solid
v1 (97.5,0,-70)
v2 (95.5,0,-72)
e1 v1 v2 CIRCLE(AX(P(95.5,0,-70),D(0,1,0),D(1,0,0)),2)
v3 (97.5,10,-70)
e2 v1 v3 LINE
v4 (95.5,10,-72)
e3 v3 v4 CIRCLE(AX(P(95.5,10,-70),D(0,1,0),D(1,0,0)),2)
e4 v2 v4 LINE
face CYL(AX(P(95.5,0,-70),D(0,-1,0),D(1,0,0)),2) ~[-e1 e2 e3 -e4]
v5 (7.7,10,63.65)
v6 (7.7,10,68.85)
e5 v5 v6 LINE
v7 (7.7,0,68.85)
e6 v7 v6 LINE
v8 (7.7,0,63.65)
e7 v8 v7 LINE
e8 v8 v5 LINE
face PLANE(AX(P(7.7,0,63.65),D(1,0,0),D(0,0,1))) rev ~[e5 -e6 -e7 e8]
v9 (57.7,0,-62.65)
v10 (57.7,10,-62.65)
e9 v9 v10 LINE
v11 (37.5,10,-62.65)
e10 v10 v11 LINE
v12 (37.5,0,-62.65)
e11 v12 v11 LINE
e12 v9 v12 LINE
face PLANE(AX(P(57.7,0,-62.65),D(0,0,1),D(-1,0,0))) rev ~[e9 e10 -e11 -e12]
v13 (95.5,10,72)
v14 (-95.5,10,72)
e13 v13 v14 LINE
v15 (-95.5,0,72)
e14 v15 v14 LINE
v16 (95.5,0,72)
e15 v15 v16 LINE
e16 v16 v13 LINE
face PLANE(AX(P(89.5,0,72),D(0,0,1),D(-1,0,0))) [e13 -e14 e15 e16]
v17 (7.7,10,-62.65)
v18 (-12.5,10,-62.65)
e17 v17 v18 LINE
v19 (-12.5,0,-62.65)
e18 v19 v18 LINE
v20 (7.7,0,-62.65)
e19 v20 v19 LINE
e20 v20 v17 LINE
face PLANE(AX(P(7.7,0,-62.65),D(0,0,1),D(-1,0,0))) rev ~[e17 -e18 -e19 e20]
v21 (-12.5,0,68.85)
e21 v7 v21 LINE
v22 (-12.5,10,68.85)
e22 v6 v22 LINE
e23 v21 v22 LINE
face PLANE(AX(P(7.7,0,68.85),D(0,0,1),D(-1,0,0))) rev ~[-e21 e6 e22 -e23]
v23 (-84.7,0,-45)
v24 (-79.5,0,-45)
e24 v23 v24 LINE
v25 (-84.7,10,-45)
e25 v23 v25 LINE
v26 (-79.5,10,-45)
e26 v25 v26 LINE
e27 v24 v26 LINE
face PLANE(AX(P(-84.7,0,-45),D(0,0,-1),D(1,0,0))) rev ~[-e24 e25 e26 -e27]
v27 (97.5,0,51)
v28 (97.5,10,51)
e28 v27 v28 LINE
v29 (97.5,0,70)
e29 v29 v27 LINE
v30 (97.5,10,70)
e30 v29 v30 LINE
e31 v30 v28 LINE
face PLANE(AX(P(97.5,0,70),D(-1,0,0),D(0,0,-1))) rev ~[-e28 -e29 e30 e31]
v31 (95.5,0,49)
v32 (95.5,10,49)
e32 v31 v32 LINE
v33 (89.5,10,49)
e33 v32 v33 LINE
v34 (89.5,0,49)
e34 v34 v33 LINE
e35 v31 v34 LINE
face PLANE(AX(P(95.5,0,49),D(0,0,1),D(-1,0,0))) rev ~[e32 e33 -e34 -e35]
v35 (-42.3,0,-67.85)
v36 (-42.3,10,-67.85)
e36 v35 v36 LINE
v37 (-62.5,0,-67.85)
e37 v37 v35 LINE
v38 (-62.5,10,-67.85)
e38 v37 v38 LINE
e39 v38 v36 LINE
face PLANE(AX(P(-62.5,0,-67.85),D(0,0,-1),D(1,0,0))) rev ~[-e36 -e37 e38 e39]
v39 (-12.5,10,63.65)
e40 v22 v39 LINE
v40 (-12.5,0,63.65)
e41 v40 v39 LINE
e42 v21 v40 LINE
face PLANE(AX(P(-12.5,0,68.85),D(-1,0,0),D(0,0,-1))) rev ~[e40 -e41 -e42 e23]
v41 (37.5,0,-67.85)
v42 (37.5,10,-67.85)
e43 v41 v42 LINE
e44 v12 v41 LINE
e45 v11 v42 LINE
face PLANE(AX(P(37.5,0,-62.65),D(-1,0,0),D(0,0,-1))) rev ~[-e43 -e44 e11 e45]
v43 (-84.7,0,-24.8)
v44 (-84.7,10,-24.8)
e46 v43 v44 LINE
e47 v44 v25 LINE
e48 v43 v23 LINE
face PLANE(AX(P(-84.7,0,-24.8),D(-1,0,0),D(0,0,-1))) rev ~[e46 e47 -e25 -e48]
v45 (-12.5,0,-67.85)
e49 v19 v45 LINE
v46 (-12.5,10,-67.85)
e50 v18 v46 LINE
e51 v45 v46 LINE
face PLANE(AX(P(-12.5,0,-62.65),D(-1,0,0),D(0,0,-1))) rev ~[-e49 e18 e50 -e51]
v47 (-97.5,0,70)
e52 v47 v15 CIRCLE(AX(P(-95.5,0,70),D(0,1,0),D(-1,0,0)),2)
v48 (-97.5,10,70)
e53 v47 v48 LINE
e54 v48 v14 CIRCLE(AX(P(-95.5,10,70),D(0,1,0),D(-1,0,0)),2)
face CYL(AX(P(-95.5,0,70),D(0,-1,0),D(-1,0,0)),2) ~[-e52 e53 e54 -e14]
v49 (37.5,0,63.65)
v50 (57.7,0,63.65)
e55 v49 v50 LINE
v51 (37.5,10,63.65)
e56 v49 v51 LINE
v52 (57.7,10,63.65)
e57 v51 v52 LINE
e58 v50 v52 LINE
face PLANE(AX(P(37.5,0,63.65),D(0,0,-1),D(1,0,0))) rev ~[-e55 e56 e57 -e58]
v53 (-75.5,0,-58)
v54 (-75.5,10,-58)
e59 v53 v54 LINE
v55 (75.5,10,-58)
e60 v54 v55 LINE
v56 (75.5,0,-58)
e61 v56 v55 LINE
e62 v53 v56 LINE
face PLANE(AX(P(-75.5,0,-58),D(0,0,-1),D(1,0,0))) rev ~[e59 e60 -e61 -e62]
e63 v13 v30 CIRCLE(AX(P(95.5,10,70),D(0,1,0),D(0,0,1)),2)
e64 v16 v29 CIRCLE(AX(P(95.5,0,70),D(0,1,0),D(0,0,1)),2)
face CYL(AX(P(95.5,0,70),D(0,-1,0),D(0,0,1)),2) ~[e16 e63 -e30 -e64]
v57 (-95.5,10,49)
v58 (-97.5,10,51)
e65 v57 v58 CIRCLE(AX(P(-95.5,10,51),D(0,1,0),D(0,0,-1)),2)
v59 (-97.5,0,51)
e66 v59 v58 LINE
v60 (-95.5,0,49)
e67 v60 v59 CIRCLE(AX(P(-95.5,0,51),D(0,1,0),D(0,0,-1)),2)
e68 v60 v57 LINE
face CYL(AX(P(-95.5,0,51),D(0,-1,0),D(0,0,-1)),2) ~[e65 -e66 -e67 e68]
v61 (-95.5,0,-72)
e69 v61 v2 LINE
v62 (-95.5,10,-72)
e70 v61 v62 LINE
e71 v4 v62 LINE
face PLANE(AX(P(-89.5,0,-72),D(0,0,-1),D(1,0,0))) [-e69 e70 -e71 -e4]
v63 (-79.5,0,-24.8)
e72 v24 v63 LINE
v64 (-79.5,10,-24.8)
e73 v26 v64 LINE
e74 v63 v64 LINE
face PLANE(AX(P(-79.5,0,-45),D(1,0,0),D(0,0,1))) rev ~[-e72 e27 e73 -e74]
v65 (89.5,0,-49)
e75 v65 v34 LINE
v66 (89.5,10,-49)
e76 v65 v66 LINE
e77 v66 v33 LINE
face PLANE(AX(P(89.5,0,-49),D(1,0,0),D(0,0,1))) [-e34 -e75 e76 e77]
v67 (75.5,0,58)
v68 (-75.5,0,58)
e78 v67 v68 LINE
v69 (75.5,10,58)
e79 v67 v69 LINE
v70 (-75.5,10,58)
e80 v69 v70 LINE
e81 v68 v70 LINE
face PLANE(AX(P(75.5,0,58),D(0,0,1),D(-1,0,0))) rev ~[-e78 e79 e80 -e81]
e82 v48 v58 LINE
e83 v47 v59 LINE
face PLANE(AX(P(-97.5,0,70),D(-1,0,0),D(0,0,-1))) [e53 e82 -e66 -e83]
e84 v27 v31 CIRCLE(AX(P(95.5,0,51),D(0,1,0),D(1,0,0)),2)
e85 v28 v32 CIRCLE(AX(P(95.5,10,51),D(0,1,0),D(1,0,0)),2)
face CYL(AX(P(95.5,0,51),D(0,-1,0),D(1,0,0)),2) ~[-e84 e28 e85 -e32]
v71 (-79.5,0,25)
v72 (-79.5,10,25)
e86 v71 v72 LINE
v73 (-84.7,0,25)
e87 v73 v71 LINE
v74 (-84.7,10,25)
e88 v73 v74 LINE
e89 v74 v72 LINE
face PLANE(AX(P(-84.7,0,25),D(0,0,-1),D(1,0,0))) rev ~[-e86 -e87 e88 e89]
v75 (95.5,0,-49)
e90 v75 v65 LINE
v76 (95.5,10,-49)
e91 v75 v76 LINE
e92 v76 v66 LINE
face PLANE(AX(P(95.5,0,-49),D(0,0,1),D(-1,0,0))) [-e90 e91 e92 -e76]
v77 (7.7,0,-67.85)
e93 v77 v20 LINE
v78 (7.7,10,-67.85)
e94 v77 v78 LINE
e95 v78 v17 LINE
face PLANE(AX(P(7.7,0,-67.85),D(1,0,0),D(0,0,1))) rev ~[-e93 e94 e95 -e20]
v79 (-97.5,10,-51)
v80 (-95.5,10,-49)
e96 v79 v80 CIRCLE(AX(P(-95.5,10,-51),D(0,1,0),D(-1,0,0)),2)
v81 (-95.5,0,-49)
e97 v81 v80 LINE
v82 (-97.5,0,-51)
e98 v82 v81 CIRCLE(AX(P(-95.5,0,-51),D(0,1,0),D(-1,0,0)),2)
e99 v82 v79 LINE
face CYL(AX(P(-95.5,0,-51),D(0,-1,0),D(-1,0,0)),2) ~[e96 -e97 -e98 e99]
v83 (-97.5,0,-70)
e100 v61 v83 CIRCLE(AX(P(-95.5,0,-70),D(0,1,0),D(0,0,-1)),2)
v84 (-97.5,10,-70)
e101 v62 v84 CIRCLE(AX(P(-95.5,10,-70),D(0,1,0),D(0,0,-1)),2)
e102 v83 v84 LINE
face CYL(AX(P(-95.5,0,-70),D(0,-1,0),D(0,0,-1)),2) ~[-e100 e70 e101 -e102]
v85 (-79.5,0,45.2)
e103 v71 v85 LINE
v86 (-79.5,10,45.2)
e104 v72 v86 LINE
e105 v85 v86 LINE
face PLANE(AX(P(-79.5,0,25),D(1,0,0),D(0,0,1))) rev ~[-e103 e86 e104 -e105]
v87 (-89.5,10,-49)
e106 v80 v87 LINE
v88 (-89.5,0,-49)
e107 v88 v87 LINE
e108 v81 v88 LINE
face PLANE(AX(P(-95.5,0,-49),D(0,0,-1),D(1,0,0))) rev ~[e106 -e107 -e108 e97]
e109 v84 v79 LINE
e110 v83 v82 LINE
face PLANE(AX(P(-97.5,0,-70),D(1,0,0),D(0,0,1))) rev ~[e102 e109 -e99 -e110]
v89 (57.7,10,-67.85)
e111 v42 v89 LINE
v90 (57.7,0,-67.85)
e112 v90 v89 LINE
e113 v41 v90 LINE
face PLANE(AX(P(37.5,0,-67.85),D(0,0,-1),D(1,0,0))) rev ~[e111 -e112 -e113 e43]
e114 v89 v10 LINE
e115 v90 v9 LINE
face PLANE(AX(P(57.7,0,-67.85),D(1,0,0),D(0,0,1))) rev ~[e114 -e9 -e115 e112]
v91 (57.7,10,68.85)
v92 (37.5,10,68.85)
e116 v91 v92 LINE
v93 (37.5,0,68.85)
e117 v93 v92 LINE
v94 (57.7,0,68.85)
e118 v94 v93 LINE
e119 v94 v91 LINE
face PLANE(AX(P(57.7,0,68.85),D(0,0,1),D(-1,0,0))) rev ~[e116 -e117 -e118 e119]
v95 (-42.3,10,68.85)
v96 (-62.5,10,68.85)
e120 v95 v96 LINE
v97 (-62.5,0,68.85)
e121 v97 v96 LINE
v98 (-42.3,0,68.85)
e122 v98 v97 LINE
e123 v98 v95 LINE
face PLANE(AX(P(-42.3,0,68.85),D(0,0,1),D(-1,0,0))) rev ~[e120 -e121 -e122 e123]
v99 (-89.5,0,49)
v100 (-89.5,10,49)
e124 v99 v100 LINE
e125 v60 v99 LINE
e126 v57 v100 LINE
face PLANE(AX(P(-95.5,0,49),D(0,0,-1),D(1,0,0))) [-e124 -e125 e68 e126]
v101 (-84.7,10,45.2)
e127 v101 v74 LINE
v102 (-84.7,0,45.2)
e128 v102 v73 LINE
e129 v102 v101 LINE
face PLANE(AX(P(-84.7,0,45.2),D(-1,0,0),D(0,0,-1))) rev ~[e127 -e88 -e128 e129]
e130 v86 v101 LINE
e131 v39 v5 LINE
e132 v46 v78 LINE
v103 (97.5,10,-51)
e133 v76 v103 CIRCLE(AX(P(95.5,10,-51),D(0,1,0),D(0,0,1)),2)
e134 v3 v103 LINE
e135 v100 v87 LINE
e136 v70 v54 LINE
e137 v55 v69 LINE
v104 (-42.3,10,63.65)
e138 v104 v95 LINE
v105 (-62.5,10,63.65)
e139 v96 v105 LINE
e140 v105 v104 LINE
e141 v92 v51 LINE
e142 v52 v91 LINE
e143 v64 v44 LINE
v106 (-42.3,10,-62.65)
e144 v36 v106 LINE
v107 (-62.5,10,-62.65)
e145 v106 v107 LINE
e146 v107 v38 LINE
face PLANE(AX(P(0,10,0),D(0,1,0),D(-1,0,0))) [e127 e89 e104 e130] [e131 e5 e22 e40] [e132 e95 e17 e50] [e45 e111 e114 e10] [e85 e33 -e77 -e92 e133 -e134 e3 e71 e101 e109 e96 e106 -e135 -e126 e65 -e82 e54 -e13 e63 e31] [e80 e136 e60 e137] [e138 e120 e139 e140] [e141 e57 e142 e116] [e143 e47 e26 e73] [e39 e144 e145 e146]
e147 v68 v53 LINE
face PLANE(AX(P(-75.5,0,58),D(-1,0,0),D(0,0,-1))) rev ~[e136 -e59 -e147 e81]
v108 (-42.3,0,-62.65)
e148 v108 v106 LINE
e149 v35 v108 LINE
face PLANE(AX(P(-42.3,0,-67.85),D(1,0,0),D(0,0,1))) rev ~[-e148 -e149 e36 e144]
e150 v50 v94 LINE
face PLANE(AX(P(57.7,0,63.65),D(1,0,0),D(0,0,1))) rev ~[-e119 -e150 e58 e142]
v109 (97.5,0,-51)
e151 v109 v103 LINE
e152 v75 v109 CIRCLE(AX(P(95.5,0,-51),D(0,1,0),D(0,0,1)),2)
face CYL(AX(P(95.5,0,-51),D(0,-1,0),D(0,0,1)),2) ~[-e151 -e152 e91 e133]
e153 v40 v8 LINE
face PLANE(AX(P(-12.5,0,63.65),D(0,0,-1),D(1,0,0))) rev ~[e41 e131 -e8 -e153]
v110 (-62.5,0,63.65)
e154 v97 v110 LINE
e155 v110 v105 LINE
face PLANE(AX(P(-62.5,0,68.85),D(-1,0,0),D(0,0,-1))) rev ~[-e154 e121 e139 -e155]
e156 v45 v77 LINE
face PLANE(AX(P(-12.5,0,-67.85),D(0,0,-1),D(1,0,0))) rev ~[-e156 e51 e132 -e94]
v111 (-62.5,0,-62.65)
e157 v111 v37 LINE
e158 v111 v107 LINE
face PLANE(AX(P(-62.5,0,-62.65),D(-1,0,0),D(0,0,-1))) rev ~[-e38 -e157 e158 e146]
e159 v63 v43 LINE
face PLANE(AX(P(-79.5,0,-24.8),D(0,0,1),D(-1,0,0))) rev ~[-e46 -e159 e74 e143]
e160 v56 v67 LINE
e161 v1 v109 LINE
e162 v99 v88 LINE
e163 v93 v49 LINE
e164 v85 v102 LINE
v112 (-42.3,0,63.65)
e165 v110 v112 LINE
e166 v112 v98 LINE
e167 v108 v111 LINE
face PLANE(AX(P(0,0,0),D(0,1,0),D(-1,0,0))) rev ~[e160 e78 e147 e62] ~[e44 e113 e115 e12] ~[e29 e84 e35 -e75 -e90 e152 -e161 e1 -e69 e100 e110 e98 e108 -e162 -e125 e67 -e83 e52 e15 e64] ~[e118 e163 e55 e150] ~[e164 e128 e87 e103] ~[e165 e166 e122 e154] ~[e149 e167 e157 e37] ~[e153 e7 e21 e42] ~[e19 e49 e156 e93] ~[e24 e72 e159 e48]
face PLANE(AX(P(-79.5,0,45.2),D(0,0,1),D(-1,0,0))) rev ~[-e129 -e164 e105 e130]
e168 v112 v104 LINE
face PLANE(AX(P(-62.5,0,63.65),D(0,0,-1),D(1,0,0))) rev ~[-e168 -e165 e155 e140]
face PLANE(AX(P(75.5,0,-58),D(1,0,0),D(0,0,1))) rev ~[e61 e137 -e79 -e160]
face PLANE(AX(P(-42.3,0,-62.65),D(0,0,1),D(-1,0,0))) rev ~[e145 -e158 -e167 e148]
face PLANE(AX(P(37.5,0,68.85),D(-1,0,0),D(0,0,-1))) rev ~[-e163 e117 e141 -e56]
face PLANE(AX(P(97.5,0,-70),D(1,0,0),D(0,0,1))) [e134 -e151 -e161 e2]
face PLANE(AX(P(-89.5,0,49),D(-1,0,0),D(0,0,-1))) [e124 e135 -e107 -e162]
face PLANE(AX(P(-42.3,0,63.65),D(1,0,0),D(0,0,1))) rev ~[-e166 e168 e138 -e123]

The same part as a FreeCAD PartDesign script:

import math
import FreeCAD as App
import Part
import Sketcher
from FreeCAD import Vector
Q = App.Units.Quantity


def add_polygon(sketch, points):
    """Adds a closed chain of lines whose ends are joined by coincident constraints."""
    first, n = sketch.GeometryCount, len(points)
    for a, b in zip(points, points[1:] + points[:1]):
        sketch.addGeometry(Part.LineSegment(App.Vector(*a, 0), App.Vector(*b, 0)), False)
    for i in range(n):
        sketch.addConstraint(Sketcher.Constraint("Coincident", first + i, 2, first + (i + 1) % n, 1))

doc = App.newDocument("Part")
body = doc.addObject("PartDesign::Body", "Body")

# Sketch on XZ plane
sketch1 = body.newObject("Sketcher::SketchObject", "Sketch")
sketch1.AttachmentSupport = (doc.getObject("XZ_Plane"), [""])
sketch1.MapMode = "FlatFace"
sketch1.addGeometry(Part.ArcOfCircle(Part.Circle(Vector(95.5, 70, 0), Vector(0, 0, 1), 2), math.radians(0), math.radians(90)), False)  # 0
sketch1.addGeometry(Part.LineSegment(Vector(97.5, 70, 0), Vector(97.5, 51, 0)), False)  # 1
sketch1.addGeometry(Part.ArcOfCircle(Part.Circle(Vector(95.5, 51, 0), Vector(0, 0, 1), 2), math.radians(-90), math.radians(0)), False)  # 2
sketch1.addGeometry(Part.LineSegment(Vector(95.5, 49, 0), Vector(89.5, 49, 0)), False)  # 3
sketch1.addGeometry(Part.LineSegment(Vector(89.5, 49, 0), Vector(89.5, -49, 0)), False)  # 4
sketch1.addGeometry(Part.LineSegment(Vector(89.5, -49, 0), Vector(95.5, -49, 0)), False)  # 5
sketch1.addGeometry(Part.ArcOfCircle(Part.Circle(Vector(95.5, -51, 0), Vector(0, 0, 1), 2), math.radians(0), math.radians(90)), False)  # 6
sketch1.addGeometry(Part.LineSegment(Vector(97.5, -51, 0), Vector(97.5, -70, 0)), False)  # 7
sketch1.addGeometry(Part.ArcOfCircle(Part.Circle(Vector(95.5, -70, 0), Vector(0, 0, 1), 2), math.radians(-90), math.radians(0)), False)  # 8
sketch1.addGeometry(Part.LineSegment(Vector(95.5, -72, 0), Vector(-95.5, -72, 0)), False)  # 9
sketch1.addGeometry(Part.ArcOfCircle(Part.Circle(Vector(-95.5, -70, 0), Vector(0, 0, 1), 2), math.radians(180), math.radians(270)), False)  # 10
sketch1.addGeometry(Part.LineSegment(Vector(-97.5, -70, 0), Vector(-97.5, -51, 0)), False)  # 11
sketch1.addGeometry(Part.ArcOfCircle(Part.Circle(Vector(-95.5, -51, 0), Vector(0, 0, 1), 2), math.radians(90), math.radians(180)), False)  # 12
sketch1.addGeometry(Part.LineSegment(Vector(-95.5, -49, 0), Vector(-89.5, -49, 0)), False)  # 13
sketch1.addGeometry(Part.LineSegment(Vector(-89.5, -49, 0), Vector(-89.5, 49, 0)), False)  # 14
sketch1.addGeometry(Part.LineSegment(Vector(-89.5, 49, 0), Vector(-95.5, 49, 0)), False)  # 15
sketch1.addGeometry(Part.ArcOfCircle(Part.Circle(Vector(-95.5, 51, 0), Vector(0, 0, 1), 2), math.radians(180), math.radians(270)), False)  # 16
sketch1.addGeometry(Part.LineSegment(Vector(-97.5, 51, 0), Vector(-97.5, 70, 0)), False)  # 17
sketch1.addGeometry(Part.ArcOfCircle(Part.Circle(Vector(-95.5, 70, 0), Vector(0, 0, 1), 2), math.radians(90), math.radians(180)), False)  # 18
sketch1.addGeometry(Part.LineSegment(Vector(-95.5, 72, 0), Vector(95.5, 72, 0)), False)  # 19
add_polygon(sketch1, [(37.5, -67.85), (57.7, -67.85), (57.7, -62.65), (37.5, -62.65)])  # lines 20-23
add_polygon(sketch1, [(-12.5, -67.85), (7.7, -67.85), (7.7, -62.65), (-12.5, -62.65)])  # lines 24-27
add_polygon(sketch1, [(-62.5, -62.65), (-62.5, -67.85), (-42.3, -67.85), (-42.3, -62.65)])  # lines 28-31
add_polygon(sketch1, [(-84.7, -24.8), (-84.7, -45), (-79.5, -45), (-79.5, -24.8)])  # lines 32-35
add_polygon(sketch1, [(37.5, 63.65), (57.7, 63.65), (57.7, 68.85), (37.5, 68.85)])  # lines 36-39
add_polygon(sketch1, [(75.5, -58), (75.5, 58), (-75.5, 58), (-75.5, -58)])  # lines 40-43
add_polygon(sketch1, [(-79.5, 45.2), (-84.7, 45.2), (-84.7, 25), (-79.5, 25)])  # lines 44-47
add_polygon(sketch1, [(-12.5, 63.65), (7.7, 63.65), (7.7, 68.85), (-12.5, 68.85)])  # lines 48-51
add_polygon(sketch1, [(-62.5, 63.65), (-42.3, 63.65), (-42.3, 68.85), (-62.5, 68.85)])  # lines 52-55
sketch1.addConstraint([
    Sketcher.Constraint("Tangent", 0, 1, 1, 1),
    Sketcher.Constraint("Tangent", 1, 2, 2, 2),
    Sketcher.Constraint("Tangent", 2, 1, 3, 1),
    Sketcher.Constraint("Coincident", 3, 2, 4, 1),
    Sketcher.Constraint("Coincident", 4, 2, 5, 1),
    Sketcher.Constraint("Tangent", 5, 2, 6, 2),
    Sketcher.Constraint("Tangent", 6, 1, 7, 1),
    Sketcher.Constraint("Tangent", 7, 2, 8, 2),
    Sketcher.Constraint("Tangent", 8, 1, 9, 1),
    Sketcher.Constraint("Tangent", 9, 2, 10, 2),
    Sketcher.Constraint("Tangent", 10, 1, 11, 1),
    Sketcher.Constraint("Tangent", 11, 2, 12, 2),
    Sketcher.Constraint("Tangent", 12, 1, 13, 1),
    Sketcher.Constraint("Coincident", 13, 2, 14, 1),
    Sketcher.Constraint("Coincident", 14, 2, 15, 1),
    Sketcher.Constraint("Tangent", 15, 2, 16, 2),
    Sketcher.Constraint("Tangent", 16, 1, 17, 1),
    Sketcher.Constraint("Tangent", 17, 2, 18, 2),
    Sketcher.Constraint("Tangent", 18, 1, 19, 1),
    Sketcher.Constraint("Tangent", 19, 2, 0, 2),
    Sketcher.Constraint("Vertical", 1),
    Sketcher.Constraint("Horizontal", 3),
    Sketcher.Constraint("Vertical", 4),
    Sketcher.Constraint("Horizontal", 5),
    Sketcher.Constraint("Vertical", 7),
    Sketcher.Constraint("Horizontal", 9),
    Sketcher.Constraint("Vertical", 11),
    Sketcher.Constraint("Horizontal", 13),
    Sketcher.Constraint("Vertical", 14),
    Sketcher.Constraint("Horizontal", 15),
    Sketcher.Constraint("Vertical", 17),
    Sketcher.Constraint("Horizontal", 19),
    Sketcher.Constraint("Horizontal", 20),
    Sketcher.Constraint("Vertical", 21),
    Sketcher.Constraint("Horizontal", 22),
    Sketcher.Constraint("Vertical", 23),
    Sketcher.Constraint("Horizontal", 24),
    Sketcher.Constraint("Vertical", 25),
    Sketcher.Constraint("Horizontal", 26),
    Sketcher.Constraint("Vertical", 27),
    Sketcher.Constraint("Vertical", 28),
    Sketcher.Constraint("Horizontal", 29),
    Sketcher.Constraint("Vertical", 30),
    Sketcher.Constraint("Horizontal", 31),
    Sketcher.Constraint("Vertical", 32),
    Sketcher.Constraint("Horizontal", 33),
    Sketcher.Constraint("Vertical", 34),
    Sketcher.Constraint("Horizontal", 35),
    Sketcher.Constraint("Horizontal", 36),
    Sketcher.Constraint("Vertical", 37),
    Sketcher.Constraint("Horizontal", 38),
    Sketcher.Constraint("Vertical", 39),
    Sketcher.Constraint("Vertical", 40),
    Sketcher.Constraint("Horizontal", 41),
    Sketcher.Constraint("Vertical", 42),
    Sketcher.Constraint("Horizontal", 43),
    Sketcher.Constraint("Horizontal", 44),
    Sketcher.Constraint("Vertical", 45),
    Sketcher.Constraint("Horizontal", 46),
    Sketcher.Constraint("Vertical", 47),
    Sketcher.Constraint("Horizontal", 48),
    Sketcher.Constraint("Vertical", 49),
    Sketcher.Constraint("Horizontal", 50),
    Sketcher.Constraint("Vertical", 51),
    Sketcher.Constraint("Horizontal", 52),
    Sketcher.Constraint("Vertical", 53),
    Sketcher.Constraint("Horizontal", 54),
    Sketcher.Constraint("Vertical", 55),
    Sketcher.Constraint("Equal", 0, 2),
    Sketcher.Constraint("Equal", 2, 6),
    Sketcher.Constraint("Equal", 6, 8),
    Sketcher.Constraint("Equal", 8, 10),
    Sketcher.Constraint("Equal", 10, 12),
    Sketcher.Constraint("Equal", 12, 16),
    Sketcher.Constraint("Equal", 16, 18),
    Sketcher.Constraint("Symmetric", 0, 3, 10, 3, -1, 1),
    Sketcher.Constraint("Symmetric", 6, 3, 16, 3, -1, 1),
    Sketcher.Constraint("Symmetric", 3, 2, 13, 2, -1, 1),
    Sketcher.Constraint("Symmetric", 40, 2, 42, 2, -1, 1),
    Sketcher.Constraint("Symmetric", 6, 3, 12, 3, -2),
    Sketcher.Constraint("Horizontal", 23, 2, 24, 2),
    Sketcher.Constraint("Horizontal", 22, 2, 25, 2),
    Sketcher.Constraint("Horizontal", 27, 2, 28, 2),
    Sketcher.Constraint("Horizontal", 26, 2, 30, 2),
    Sketcher.Constraint("Horizontal", 39, 2, 48, 2),
    Sketcher.Constraint("Horizontal", 38, 2, 49, 2),
    Sketcher.Constraint("Horizontal", 51, 2, 52, 2),
    Sketcher.Constraint("Horizontal", 50, 2, 53, 2),
    Sketcher.Constraint("Vertical", 21, 2, 36, 2),
    Sketcher.Constraint("Vertical", 23, 2, 38, 2),
    Sketcher.Constraint("Vertical", 35, 2, 44, 2),
    Sketcher.Constraint("Vertical", 34, 2, 46, 2),
    Sketcher.Constraint("Vertical", 25, 2, 48, 2),
    Sketcher.Constraint("Vertical", 27, 2, 50, 2),
    Sketcher.Constraint("Vertical", 30, 2, 52, 2),
    Sketcher.Constraint("Vertical", 31, 2, 54, 2),
    Sketcher.Constraint("Equal", 22, 24),
    Sketcher.Constraint("Equal", 26, 29),
    Sketcher.Constraint("Equal", 46, 21),
    Sketcher.Constraint("Equal", 54, 32),
    Sketcher.Constraint("Equal", 30, 37),
    Sketcher.Constraint("Equal", 34, 45),
    Sketcher.Constraint("Radius", 0, Q("2 mm")),
    Sketcher.Constraint("DistanceX", 41, 2, 41, 1, Q("151 mm")),
    Sketcher.Constraint("DistanceY", 40, 1, 40, 2, Q("116 mm")),
    Sketcher.Constraint("DistanceX", 20, 1, 20, 2, Q("20.2 mm")),
    Sketcher.Constraint("DistanceX", 33, 1, 33, 2, Q("5.2 mm")),
    Sketcher.Constraint("DistanceY", -1, 1, 0, 3, Q("70 mm")),
    Sketcher.Constraint("DistanceX", 3, 2, 3, 1, Q("6 mm")),
    Sketcher.Constraint("DistanceX", 9, 2, 9, 1, Q("191 mm")),
    Sketcher.Constraint("DistanceY", 1, 2, 1, 1, Q("19 mm")),
    Sketcher.Constraint("DistanceY", 32, 2, -1, 1, Q("45 mm")),
    Sketcher.Constraint("DistanceY", -1, 1, 45, 2, Q("25 mm")),
    Sketcher.Constraint("DistanceX", -1, 1, 20, 2, Q("57.7 mm")),
    Sketcher.Constraint("DistanceX", -1, 1, 24, 2, Q("7.7 mm")),
    Sketcher.Constraint("DistanceX", 28, 2, -1, 1, Q("62.5 mm")),
    Sketcher.Constraint("DistanceX", 32, 2, -1, 1, Q("84.7 mm")),
    Sketcher.Constraint("DistanceY", 20, 2, -1, 1, Q("67.85 mm")),
    Sketcher.Constraint("DistanceY", -1, 1, 36, 2, Q("63.65 mm")),
])
pad1 = body.newObject("PartDesign::Pad", "Pad")
pad1.Profile = sketch1
pad1.Length = 10
pad1.Reversed = True

doc.recompute()
